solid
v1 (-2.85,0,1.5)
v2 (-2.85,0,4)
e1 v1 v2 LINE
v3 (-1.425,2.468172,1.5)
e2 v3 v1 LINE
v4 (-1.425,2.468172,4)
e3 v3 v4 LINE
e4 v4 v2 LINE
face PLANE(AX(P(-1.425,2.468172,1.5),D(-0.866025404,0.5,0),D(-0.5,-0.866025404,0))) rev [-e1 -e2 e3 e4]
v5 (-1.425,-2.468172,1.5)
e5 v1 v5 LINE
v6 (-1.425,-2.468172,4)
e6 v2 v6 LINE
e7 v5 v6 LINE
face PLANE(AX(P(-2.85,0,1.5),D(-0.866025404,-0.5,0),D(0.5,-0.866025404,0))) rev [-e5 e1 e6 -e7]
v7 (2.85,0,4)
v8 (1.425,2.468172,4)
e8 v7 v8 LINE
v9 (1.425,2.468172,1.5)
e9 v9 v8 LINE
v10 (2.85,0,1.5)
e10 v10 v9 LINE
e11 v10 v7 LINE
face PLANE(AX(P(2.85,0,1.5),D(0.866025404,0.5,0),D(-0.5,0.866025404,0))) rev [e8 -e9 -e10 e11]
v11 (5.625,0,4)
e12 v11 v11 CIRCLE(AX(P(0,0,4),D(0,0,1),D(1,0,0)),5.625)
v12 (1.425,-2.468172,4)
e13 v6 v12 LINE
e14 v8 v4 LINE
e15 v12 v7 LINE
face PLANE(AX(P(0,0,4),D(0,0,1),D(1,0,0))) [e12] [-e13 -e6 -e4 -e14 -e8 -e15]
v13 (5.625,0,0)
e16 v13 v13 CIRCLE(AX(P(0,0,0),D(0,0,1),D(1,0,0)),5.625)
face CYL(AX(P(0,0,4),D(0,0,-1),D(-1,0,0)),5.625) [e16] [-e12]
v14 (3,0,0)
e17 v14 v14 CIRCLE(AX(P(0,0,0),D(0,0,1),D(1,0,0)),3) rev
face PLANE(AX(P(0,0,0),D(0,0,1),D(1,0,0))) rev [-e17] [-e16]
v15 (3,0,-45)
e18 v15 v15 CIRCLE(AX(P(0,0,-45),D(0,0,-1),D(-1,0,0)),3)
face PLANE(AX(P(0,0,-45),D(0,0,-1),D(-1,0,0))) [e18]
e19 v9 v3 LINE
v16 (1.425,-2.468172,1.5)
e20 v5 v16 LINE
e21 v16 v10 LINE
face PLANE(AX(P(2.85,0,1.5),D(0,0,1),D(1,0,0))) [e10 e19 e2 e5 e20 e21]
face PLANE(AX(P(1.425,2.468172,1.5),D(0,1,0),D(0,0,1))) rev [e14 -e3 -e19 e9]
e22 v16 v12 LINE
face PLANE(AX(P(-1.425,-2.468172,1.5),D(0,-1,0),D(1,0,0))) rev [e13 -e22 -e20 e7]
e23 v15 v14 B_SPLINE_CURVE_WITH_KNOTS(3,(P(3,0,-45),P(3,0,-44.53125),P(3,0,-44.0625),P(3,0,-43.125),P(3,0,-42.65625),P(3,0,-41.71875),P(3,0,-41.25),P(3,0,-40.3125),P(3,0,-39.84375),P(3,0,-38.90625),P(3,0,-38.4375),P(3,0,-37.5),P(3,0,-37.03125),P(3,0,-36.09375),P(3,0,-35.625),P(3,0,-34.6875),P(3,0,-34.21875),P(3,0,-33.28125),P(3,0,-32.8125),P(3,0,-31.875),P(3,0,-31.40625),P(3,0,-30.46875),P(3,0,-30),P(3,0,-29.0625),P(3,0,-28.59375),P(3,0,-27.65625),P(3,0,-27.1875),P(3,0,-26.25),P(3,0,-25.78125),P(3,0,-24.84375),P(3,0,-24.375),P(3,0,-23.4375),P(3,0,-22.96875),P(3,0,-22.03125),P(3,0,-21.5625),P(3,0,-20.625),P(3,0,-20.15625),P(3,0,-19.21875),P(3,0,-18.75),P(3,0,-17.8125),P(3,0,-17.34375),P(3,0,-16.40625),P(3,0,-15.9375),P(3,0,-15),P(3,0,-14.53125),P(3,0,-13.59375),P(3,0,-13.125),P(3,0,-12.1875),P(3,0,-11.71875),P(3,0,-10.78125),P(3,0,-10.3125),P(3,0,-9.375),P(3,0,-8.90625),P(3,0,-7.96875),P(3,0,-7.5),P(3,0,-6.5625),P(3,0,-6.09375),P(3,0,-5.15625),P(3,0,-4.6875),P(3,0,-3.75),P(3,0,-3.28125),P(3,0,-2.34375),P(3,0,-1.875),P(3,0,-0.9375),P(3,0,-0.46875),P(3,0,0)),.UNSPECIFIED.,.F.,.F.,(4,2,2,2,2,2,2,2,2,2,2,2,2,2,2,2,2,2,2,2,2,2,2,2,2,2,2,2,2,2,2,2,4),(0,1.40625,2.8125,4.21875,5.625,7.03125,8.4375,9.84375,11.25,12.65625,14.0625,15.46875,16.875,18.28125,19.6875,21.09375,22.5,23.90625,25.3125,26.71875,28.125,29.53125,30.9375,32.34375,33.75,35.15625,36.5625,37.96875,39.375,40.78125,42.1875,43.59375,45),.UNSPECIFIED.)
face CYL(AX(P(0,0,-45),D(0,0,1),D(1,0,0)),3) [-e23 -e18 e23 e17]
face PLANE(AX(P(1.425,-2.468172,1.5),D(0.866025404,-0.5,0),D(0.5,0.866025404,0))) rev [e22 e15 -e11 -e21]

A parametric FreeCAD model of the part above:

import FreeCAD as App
import Part
import Sketcher
from FreeCAD import Vector
Q = App.Units.Quantity


def add_polygon(sketch, points):
    """Adds a closed chain of lines whose ends are joined by coincident constraints."""
    first, n = sketch.GeometryCount, len(points)
    for a, b in zip(points, points[1:] + points[:1]):
        sketch.addGeometry(Part.LineSegment(App.Vector(*a, 0), App.Vector(*b, 0)), False)
    for i in range(n):
        sketch.addConstraint(Sketcher.Constraint("Coincident", first + i, 2, first + (i + 1) % n, 1))

doc = App.newDocument("Part")
body = doc.addObject("PartDesign::Body", "Body")

# Sketch on XY plane
sketch1 = body.newObject("Sketcher::SketchObject", "Sketch")
sketch1.AttachmentSupport = (doc.getObject("XY_Plane"), [""])
sketch1.MapMode = "FlatFace"
sketch1.addGeometry(Part.Circle(Vector(0, 0, 0), Vector(0, 0, 1), 6), False)
sketch1.addConstraint(Sketcher.Constraint("Coincident", 0, 3, -1, 1))
sketch1.addConstraint(Sketcher.Constraint("Diameter", 0, Q("11.25 mm")))
pad1 = body.newObject("PartDesign::Pad", "Pad")
pad1.Profile = sketch1
pad1.Length = 4

# Sketch on XY plane
sketch2 = body.newObject("Sketcher::SketchObject", "Sketch001")
sketch2.AttachmentSupport = (doc.getObject("XY_Plane"), [""])
sketch2.MapMode = "FlatFace"
sketch2.AttachmentOffset = App.Placement(Vector(0, 0, 4), App.Rotation())
add_polygon(sketch2, [(2.9, 0), (1.4, 2.5), (-1.4, 2.5), (-2.9, 0), (-1.4, -2.5), (1.4, -2.5)])  # lines 0-5
sketch2.addConstraint(Sketcher.Constraint("Horizontal", 1))
sketch2.addConstraint(Sketcher.Constraint("Horizontal", 4))
sketch2.addConstraint(Sketcher.Constraint("Symmetric", 0, 2, 3, 2, -1, 1))
sketch2.addConstraint(Sketcher.Constraint("Symmetric", 2, 2, 5, 2, -1, 1))
sketch2.addConstraint(Sketcher.Constraint("PointOnObject", 2, 2, -1))
sketch2.addConstraint(Sketcher.Constraint("Parallel", 2, 5))
sketch2.addConstraint(Sketcher.Constraint("Vertical", 1, 2, 3, 2))
sketch2.addConstraint(Sketcher.Constraint("Angle", 0, Q("120 deg")))
sketch2.addConstraint(Sketcher.Constraint("DistanceX", 1, 2, 1, 1, Q("2.85 mm")))
sketch2.addConstraint(Sketcher.Constraint("DistanceX", 2, 2, 5, 2, Q("5.7 mm")))
pocket1 = body.newObject("PartDesign::Pocket", "Pocket")
pocket1.Profile = sketch2
pocket1.Length = 2.5

# Sketch on XY plane
sketch3 = body.newObject("Sketcher::SketchObject", "Sketch002")
sketch3.AttachmentSupport = (doc.getObject("XY_Plane"), [""])
sketch3.MapMode = "FlatFace"
sketch3.addGeometry(Part.Circle(Vector(0, 0, 0), Vector(0, 0, 1), 3), False)
sketch3.addConstraint(Sketcher.Constraint("Coincident", 0, 3, -1, 1))
sketch3.addConstraint(Sketcher.Constraint("Diameter", 0, Q("6 mm")))
pad2 = body.newObject("PartDesign::Pad", "Pad001")
pad2.Profile = sketch3
pad2.Length = 45
pad2.Reversed = True

doc.recompute()
